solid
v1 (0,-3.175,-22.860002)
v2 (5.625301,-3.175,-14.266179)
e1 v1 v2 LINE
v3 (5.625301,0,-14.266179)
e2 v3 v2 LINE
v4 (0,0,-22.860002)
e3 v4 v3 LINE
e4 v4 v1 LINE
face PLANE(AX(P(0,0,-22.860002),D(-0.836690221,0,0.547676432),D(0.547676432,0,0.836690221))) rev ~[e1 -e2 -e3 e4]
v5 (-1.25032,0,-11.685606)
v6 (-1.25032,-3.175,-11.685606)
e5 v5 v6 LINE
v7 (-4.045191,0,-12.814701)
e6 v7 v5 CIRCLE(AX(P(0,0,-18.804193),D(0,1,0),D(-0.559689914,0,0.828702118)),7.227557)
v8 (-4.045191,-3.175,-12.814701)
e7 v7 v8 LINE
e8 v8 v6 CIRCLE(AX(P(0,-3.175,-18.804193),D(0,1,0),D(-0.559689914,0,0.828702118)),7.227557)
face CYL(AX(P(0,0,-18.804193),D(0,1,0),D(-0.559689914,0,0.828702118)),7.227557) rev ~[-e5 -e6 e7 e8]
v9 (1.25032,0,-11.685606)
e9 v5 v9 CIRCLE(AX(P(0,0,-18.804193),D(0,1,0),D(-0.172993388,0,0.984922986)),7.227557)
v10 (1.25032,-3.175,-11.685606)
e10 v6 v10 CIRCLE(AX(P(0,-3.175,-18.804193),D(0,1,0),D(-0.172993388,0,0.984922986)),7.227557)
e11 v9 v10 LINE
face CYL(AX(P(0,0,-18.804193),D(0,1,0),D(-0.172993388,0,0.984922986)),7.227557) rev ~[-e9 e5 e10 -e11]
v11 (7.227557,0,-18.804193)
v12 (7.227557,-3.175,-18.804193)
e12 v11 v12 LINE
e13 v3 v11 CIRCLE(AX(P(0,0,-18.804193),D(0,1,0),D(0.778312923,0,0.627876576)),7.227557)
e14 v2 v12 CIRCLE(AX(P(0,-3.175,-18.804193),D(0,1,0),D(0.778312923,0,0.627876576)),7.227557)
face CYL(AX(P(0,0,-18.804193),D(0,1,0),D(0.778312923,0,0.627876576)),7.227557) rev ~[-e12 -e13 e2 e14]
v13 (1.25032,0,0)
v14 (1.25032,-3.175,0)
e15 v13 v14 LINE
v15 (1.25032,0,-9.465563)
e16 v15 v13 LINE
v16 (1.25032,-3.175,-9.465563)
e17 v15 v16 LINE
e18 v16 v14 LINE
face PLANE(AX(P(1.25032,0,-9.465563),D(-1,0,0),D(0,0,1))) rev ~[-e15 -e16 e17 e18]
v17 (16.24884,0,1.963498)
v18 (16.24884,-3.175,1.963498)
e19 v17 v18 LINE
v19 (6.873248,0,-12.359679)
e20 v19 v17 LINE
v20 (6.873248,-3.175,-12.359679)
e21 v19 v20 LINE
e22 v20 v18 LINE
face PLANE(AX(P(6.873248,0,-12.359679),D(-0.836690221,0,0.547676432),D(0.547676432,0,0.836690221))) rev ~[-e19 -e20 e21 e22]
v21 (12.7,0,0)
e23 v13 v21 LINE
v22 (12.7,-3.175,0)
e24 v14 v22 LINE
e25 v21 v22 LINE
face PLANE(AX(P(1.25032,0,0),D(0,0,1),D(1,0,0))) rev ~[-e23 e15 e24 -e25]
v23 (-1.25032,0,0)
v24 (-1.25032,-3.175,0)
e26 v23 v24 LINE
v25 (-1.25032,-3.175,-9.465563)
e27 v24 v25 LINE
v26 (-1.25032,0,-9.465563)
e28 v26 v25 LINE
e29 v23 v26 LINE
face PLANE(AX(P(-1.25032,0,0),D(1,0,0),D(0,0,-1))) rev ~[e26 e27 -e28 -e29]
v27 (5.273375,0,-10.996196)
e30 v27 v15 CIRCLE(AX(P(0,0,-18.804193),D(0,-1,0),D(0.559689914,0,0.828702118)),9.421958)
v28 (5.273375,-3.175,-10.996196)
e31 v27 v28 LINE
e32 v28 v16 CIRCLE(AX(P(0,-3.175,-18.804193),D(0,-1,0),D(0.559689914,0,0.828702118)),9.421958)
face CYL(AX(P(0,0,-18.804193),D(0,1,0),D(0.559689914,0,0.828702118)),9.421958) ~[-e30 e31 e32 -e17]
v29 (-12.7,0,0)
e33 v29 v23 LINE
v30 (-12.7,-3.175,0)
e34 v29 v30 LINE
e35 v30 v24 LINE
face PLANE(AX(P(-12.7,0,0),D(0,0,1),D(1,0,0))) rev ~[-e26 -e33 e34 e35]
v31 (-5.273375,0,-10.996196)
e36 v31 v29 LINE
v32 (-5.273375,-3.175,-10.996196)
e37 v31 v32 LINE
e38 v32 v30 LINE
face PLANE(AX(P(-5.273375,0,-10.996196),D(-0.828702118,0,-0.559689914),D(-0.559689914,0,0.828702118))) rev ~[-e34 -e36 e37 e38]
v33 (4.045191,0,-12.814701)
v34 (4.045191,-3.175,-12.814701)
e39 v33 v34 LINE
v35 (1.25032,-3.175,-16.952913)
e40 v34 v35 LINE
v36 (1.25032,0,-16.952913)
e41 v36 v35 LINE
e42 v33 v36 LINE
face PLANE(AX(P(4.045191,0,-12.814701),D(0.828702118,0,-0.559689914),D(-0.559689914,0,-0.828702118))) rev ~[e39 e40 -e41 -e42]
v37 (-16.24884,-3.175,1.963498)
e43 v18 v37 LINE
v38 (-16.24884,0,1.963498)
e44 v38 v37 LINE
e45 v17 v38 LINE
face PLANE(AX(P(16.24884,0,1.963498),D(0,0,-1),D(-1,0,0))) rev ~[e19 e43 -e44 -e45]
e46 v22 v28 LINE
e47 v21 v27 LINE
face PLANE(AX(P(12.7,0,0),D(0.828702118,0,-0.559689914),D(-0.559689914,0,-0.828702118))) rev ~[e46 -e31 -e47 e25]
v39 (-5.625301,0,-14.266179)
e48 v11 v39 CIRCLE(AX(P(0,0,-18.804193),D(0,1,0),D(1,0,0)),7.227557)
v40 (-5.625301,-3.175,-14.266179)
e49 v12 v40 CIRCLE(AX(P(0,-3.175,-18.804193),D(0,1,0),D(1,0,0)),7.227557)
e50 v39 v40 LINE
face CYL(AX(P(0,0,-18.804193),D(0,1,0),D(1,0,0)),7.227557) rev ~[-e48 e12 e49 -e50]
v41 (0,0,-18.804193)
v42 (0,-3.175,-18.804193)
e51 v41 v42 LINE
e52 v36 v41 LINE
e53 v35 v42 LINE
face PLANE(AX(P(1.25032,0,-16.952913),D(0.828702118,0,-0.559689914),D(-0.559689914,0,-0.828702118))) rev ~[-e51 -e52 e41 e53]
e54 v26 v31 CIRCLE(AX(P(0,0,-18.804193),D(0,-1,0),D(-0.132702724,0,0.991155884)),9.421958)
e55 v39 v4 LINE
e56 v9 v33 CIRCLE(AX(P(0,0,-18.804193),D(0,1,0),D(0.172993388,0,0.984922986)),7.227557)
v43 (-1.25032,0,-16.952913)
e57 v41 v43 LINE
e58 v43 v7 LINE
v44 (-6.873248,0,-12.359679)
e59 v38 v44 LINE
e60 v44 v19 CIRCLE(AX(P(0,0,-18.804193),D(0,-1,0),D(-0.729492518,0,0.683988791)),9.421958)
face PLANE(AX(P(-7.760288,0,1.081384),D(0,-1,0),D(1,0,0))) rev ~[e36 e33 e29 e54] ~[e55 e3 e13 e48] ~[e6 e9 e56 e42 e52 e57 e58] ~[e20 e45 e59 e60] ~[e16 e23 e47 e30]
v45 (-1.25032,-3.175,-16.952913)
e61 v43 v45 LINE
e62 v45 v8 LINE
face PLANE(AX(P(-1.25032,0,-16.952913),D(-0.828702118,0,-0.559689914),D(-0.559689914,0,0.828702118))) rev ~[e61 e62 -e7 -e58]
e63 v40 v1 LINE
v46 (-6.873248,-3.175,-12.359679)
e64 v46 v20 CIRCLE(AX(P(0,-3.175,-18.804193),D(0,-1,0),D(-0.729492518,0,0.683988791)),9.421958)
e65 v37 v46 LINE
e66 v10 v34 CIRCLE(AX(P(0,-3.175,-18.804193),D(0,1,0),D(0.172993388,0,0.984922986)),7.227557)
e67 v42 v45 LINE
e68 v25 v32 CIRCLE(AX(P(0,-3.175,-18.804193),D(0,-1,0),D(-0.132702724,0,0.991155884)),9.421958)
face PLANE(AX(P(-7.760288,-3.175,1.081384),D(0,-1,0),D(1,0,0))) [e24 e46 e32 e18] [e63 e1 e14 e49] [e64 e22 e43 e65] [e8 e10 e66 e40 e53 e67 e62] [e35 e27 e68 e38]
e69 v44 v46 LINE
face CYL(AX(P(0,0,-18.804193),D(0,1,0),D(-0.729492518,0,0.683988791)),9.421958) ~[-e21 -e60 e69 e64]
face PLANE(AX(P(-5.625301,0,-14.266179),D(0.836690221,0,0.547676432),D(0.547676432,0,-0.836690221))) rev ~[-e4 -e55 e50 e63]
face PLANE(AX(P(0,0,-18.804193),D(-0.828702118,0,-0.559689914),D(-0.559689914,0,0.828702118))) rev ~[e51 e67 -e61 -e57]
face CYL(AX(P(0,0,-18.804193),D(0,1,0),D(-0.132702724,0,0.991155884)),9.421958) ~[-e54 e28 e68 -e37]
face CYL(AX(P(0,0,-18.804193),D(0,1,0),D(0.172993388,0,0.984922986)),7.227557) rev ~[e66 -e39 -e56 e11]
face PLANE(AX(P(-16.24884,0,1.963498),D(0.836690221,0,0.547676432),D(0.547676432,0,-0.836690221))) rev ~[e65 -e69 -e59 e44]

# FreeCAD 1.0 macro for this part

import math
import FreeCAD as App
import Part
import Sketcher
from FreeCAD import Vector
Q = App.Units.Quantity

doc = App.newDocument("Part")
body = doc.addObject("PartDesign::Body", "Body")

# Sketch on XZ plane
sketch1 = body.newObject("Sketcher::SketchObject", "Sketch")
sketch1.AttachmentSupport = (doc.getObject("XZ_Plane"), [""])
sketch1.MapMode = "FlatFace"
sketch1.addGeometry(Part.ArcOfCircle(Part.Circle(Vector(0, -18.8, 0), Vector(0, 0, 1), 9.4), math.radians(137), math.radians(403)), False)
sketch1.addGeometry(Part.LineSegment(Vector(6.9, -12.4, 0), Vector(16.2, 2, 0)), False)
sketch1.addGeometry(Part.LineSegment(Vector(16.2, 2, 0), Vector(-16.2, 2, 0)), False)
sketch1.addGeometry(Part.LineSegment(Vector(-16.2, 2, 0), Vector(-6.9, -12.4, 0)), False)
sketch1.addGeometry(Part.LineSegment(Vector(0, -22.9, 0), Vector(5.6, -14.3, 0)), False)
sketch1.addGeometry(Part.ArcOfCircle(Part.Circle(Vector(0, -18.8, 0), Vector(0, 0, 1), 7.2), math.radians(0), math.radians(39)), False)
sketch1.addGeometry(Part.ArcOfCircle(Part.Circle(Vector(0, -18.8, 0), Vector(0, 0, 1), 7.2), math.radians(141), math.radians(360)), False)
sketch1.addGeometry(Part.LineSegment(Vector(-5.6, -14.3, 0), Vector(0, -22.9, 0)), False)
sketch1.addGeometry(Part.ArcOfCircle(Part.Circle(Vector(0, -18.8, 0), Vector(0, 0, 1), 7.2), math.radians(56), math.radians(80)), False)
sketch1.addGeometry(Part.LineSegment(Vector(4, -12.8, 0), Vector(1.3, -17, 0)), False)
sketch1.addGeometry(Part.LineSegment(Vector(1.3, -17, 0), Vector(0, -18.8, 0)), False)
sketch1.addGeometry(Part.LineSegment(Vector(0, -18.8, 0), Vector(-1.3, -17, 0)), False)
sketch1.addGeometry(Part.LineSegment(Vector(-1.3, -17, 0), Vector(-4, -12.8, 0)), False)
sketch1.addGeometry(Part.ArcOfCircle(Part.Circle(Vector(0, -18.8, 0), Vector(0, 0, 1), 7.2), math.radians(100), math.radians(124)), False)
sketch1.addGeometry(Part.ArcOfCircle(Part.Circle(Vector(0, -18.8, 0), Vector(0, 0, 1), 7.2), math.radians(80.04), math.radians(99.96)), False)
sketch1.addGeometry(Part.ArcOfCircle(Part.Circle(Vector(0, -18.8, 0), Vector(0, 0, 1), 9.4), math.radians(98), math.radians(124)), False)
sketch1.addGeometry(Part.LineSegment(Vector(-5.3, -11, 0), Vector(-12.7, 0, 0)), False)
sketch1.addGeometry(Part.LineSegment(Vector(-12.7, 0, 0), Vector(-1.3, 0, 0)), False)
sketch1.addGeometry(Part.LineSegment(Vector(-1.3, 0, 0), Vector(-1.3, -9.5, 0)), False)
sketch1.addGeometry(Part.LineSegment(Vector(12.7, 0, 0), Vector(5.3, -11, 0)), False)
sketch1.addGeometry(Part.ArcOfCircle(Part.Circle(Vector(0, -18.8, 0), Vector(0, 0, 1), 9.4), math.radians(56), math.radians(82)), False)
sketch1.addGeometry(Part.LineSegment(Vector(1.3, -9.5, 0), Vector(1.3, 0, 0)), False)
sketch1.addGeometry(Part.LineSegment(Vector(1.3, 0, 0), Vector(12.7, 0, 0)), False)
sketch1.addConstraint(Sketcher.Constraint("Coincident", 0, 2, 1, 1))
sketch1.addConstraint(Sketcher.Constraint("Coincident", 1, 2, 2, 1))
sketch1.addConstraint(Sketcher.Constraint("Coincident", 2, 2, 3, 1))
sketch1.addConstraint(Sketcher.Constraint("Coincident", 3, 2, 0, 1))
sketch1.addConstraint(Sketcher.Constraint("Coincident", 4, 2, 5, 2))
sketch1.addConstraint(Sketcher.Constraint("Tangent", 5, 1, 6, 2))
sketch1.addConstraint(Sketcher.Constraint("Coincident", 6, 1, 7, 1))
sketch1.addConstraint(Sketcher.Constraint("Coincident", 7, 2, 4, 1))
sketch1.addConstraint(Sketcher.Constraint("Coincident", 8, 1, 9, 1))
sketch1.addConstraint(Sketcher.Constraint("Coincident", 9, 2, 10, 1))
sketch1.addConstraint(Sketcher.Constraint("Coincident", 10, 2, 11, 1))
sketch1.addConstraint(Sketcher.Constraint("Coincident", 11, 2, 12, 1))
sketch1.addConstraint(Sketcher.Constraint("Coincident", 12, 2, 13, 2))
sketch1.addConstraint(Sketcher.Constraint("Tangent", 13, 1, 14, 2))
sketch1.addConstraint(Sketcher.Constraint("Tangent", 14, 1, 8, 2))
sketch1.addConstraint(Sketcher.Constraint("Coincident", 15, 2, 16, 1))
sketch1.addConstraint(Sketcher.Constraint("Coincident", 16, 2, 17, 1))
sketch1.addConstraint(Sketcher.Constraint("Coincident", 17, 2, 18, 1))
sketch1.addConstraint(Sketcher.Constraint("Coincident", 18, 2, 15, 1))
sketch1.addConstraint(Sketcher.Constraint("Coincident", 19, 2, 20, 1))
sketch1.addConstraint(Sketcher.Constraint("Coincident", 20, 2, 21, 1))
sketch1.addConstraint(Sketcher.Constraint("Coincident", 21, 2, 22, 1))
sketch1.addConstraint(Sketcher.Constraint("Coincident", 22, 2, 19, 1))
sketch1.addConstraint(Sketcher.Constraint("Horizontal", 2))
sketch1.addConstraint(Sketcher.Constraint("Horizontal", 17))
sketch1.addConstraint(Sketcher.Constraint("Vertical", 18))
sketch1.addConstraint(Sketcher.Constraint("Vertical", 21))
sketch1.addConstraint(Sketcher.Constraint("Horizontal", 22))
sketch1.addConstraint(Sketcher.Constraint("Coincident", 5, 3, 0, 3))
sketch1.addConstraint(Sketcher.Constraint("Coincident", 8, 3, 0, 3))
sketch1.addConstraint(Sketcher.Constraint("Coincident", 13, 3, 0, 3))
sketch1.addConstraint(Sketcher.Constraint("Coincident", 15, 3, 0, 3))
sketch1.addConstraint(Sketcher.Constraint("Coincident", 20, 3, 0, 3))
sketch1.addConstraint(Sketcher.Constraint("Coincident", 10, 2, 0, 3))
sketch1.addConstraint(Sketcher.Constraint("Equal", 5, 6))
sketch1.addConstraint(Sketcher.Constraint("Equal", 6, 8))
sketch1.addConstraint(Sketcher.Constraint("Equal", 0, 15))
sketch1.addConstraint(Sketcher.Constraint("Equal", 15, 20))
sketch1.addConstraint(Sketcher.Constraint("Symmetric", 17, 2, 21, 2, -1, 1))
sketch1.addConstraint(Sketcher.Constraint("Symmetric", 0, 2, 3, 2, -2))
sketch1.addConstraint(Sketcher.Constraint("Symmetric", 9, 2, 11, 2, -2))
sketch1.addConstraint(Sketcher.Constraint("Symmetric", 16, 2, 22, 2, -2))
sketch1.addConstraint(Sketcher.Constraint("PointOnObject", 7, 2, -2))
sketch1.addConstraint(Sketcher.Constraint("Parallel", 1, 4))
sketch1.addConstraint(Sketcher.Constraint("Parallel", 3, 7))
sketch1.addConstraint(Sketcher.Constraint("Parallel", 9, 10))
sketch1.addConstraint(Sketcher.Constraint("Parallel", 11, 12))
sketch1.addConstraint(Sketcher.Constraint("Parallel", 12, 16))
sketch1.addConstraint(Sketcher.Constraint("Parallel", 10, 19))
sketch1.addConstraint(Sketcher.Constraint("Horizontal", 20, 3, 5, 1))
sketch1.addConstraint(Sketcher.Constraint("Horizontal", 4, 2, 6, 1))
sketch1.addConstraint(Sketcher.Constraint("Horizontal", 13, 1, 14, 1))
sketch1.addConstraint(Sketcher.Constraint("Vertical", 11, 2, 13, 1))
sketch1.addConstraint(Sketcher.Constraint("Vertical", 13, 1, 17, 2))
sketch1.addConstraint(Sketcher.Constraint("DistanceY", 7, 2, -1, 1, Q("0.9000001 in")))
sketch1.addConstraint(Sketcher.Constraint("DistanceX", 16, 2, -1, 1, Q("0.5 in")))
sketch1.addConstraint(Sketcher.Constraint("Radius", 0, Q("9.421958 mm")))
sketch1.addConstraint(Sketcher.Constraint("Radius", 5, Q("7.227557 mm")))
sketch1.addConstraint(Sketcher.Constraint("DistanceX", 2, 2, 2, 1, Q("32.49768 mm")))
sketch1.addConstraint(Sketcher.Constraint("DistanceX", 17, 1, 17, 2, Q("11.44968 mm")))
sketch1.addConstraint(Sketcher.Constraint("DistanceX", -1, 1, 4, 2, Q("5.625301 mm")))
sketch1.addConstraint(Sketcher.Constraint("DistanceY", 8, 1, -1, 1, Q("12.814701 mm")))
sketch1.addConstraint(Sketcher.Constraint("DistanceY", 4, 2, 0, 2, Q("1.9065 mm")))
sketch1.addConstraint(Sketcher.Constraint("Distance", 10, Q("2.23395 mm")))
pad1 = body.newObject("PartDesign::Pad", "Pad")
pad1.Profile = sketch1
pad1.Length = Q("0.125 in")

doc.recompute()
